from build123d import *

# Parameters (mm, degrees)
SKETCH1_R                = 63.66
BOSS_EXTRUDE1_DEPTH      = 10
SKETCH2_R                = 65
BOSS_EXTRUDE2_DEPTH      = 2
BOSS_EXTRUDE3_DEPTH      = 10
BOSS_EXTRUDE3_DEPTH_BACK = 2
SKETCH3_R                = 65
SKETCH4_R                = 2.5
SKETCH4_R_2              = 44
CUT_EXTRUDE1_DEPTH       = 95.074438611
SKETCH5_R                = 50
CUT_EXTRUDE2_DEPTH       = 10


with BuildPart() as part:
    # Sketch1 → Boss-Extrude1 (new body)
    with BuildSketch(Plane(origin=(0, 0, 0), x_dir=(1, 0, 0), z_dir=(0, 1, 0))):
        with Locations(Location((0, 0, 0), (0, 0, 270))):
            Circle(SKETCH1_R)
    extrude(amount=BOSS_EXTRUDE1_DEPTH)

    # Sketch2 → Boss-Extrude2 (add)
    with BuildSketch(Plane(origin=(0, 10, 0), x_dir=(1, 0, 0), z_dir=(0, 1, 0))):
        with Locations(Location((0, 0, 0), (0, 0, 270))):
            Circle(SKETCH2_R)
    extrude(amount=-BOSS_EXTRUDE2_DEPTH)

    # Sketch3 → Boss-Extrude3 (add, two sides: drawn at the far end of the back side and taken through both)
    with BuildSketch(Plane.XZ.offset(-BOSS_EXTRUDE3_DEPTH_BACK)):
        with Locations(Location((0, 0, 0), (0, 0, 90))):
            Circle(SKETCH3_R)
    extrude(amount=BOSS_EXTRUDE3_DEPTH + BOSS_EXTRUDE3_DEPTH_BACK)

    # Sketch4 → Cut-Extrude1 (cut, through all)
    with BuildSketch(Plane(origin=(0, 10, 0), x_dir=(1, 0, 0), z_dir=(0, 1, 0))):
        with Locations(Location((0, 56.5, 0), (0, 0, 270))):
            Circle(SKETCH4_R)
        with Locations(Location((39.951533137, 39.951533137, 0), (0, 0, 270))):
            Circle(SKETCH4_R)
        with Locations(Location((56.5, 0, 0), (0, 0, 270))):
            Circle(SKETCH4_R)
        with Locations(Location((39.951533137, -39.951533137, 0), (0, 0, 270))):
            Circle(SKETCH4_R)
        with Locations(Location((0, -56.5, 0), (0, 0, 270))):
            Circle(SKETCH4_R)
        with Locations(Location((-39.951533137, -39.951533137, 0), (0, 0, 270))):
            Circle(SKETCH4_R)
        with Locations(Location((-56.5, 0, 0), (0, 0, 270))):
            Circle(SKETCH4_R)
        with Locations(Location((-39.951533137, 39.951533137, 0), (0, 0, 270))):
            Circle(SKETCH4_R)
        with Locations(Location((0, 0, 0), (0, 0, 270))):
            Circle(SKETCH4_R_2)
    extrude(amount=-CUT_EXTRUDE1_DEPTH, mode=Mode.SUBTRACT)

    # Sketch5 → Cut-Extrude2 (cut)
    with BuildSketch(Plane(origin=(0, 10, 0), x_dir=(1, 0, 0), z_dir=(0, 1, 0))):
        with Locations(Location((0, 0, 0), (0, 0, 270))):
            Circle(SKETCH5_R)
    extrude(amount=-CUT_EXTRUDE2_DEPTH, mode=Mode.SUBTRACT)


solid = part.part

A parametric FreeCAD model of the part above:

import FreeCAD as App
import Part
import Sketcher
from FreeCAD import Vector

doc = App.newDocument("Part")
body = doc.addObject("PartDesign::Body", "Body")

sketch1 = body.newObject("Sketcher::SketchObject", "Sketch")
sketch1.AttachmentSupport = (doc.getObject("XZ_Plane"), [""])
sketch1.MapMode = "FlatFace"
sketch1.addGeometry(Part.Circle(Vector(0, 0, 0), Vector(0, 0, 1), 63.66), False)
sketch1.addConstraint([
    Sketcher.Constraint("Coincident", 0, 3, -1, 1),
    Sketcher.Constraint("Diameter", 0, 127.32),
])
pad1 = body.newObject("PartDesign::Pad", "Pad")
pad1.Profile = sketch1
pad1.Length = 10
pad1.Reversed = True

sketch2 = body.newObject("Sketcher::SketchObject", "Sketch001")
sketch2.AttachmentSupport = (doc.getObject("XZ_Plane"), [""])
sketch2.MapMode = "FlatFace"
sketch2.AttachmentOffset = App.Placement(Vector(0, 0, -10), App.Rotation())
sketch2.addGeometry(Part.Circle(Vector(0, 0, 0), Vector(0, 0, 1), 65), False)
sketch2.addConstraint([
    Sketcher.Constraint("Coincident", 0, 3, -1, 1),
    Sketcher.Constraint("Diameter", 0, 130.0),
])
pad2 = body.newObject("PartDesign::Pad", "Pad001")
pad2.Profile = sketch2
pad2.Length = 2

sketch3 = body.newObject("Sketcher::SketchObject", "Sketch002")
sketch3.AttachmentSupport = (doc.getObject("XZ_Plane"), [""])
sketch3.MapMode = "FlatFace"
sketch3.addGeometry(Part.Circle(Vector(0, 0, 0), Vector(0, 0, 1), 65), False)
sketch3.addConstraint([
    Sketcher.Constraint("Coincident", 0, 3, -1, 1),
    Sketcher.Constraint("Diameter", 0, 130.0),
])
pad3 = body.newObject("PartDesign::Pad", "Pad002")
pad3.Profile = sketch3
pad3.Type = "TwoLengths"
pad3.Length = 10
pad3.Length2 = 2

sketch4 = body.newObject("Sketcher::SketchObject", "Sketch003")
sketch4.AttachmentSupport = (doc.getObject("XZ_Plane"), [""])
sketch4.MapMode = "FlatFace"
sketch4.AttachmentOffset = App.Placement(Vector(0, 0, -10), App.Rotation())
sketch4.addGeometry([
    Part.Circle(Vector(0, -56.5, 0), Vector(0, 0, 1), 2.5),
    Part.Circle(Vector(39.951533, -39.951533, 0), Vector(0, 0, 1), 2.5),
    Part.Circle(Vector(56.5, 0, 0), Vector(0, 0, 1), 2.5),
    Part.Circle(Vector(39.951533, 39.951533, 0), Vector(0, 0, 1), 2.5),
    Part.Circle(Vector(0, 56.5, 0), Vector(0, 0, 1), 2.5),
    Part.Circle(Vector(-39.951533, 39.951533, 0), Vector(0, 0, 1), 2.5),
    Part.Circle(Vector(-56.5, 0, 0), Vector(0, 0, 1), 2.5),
    Part.Circle(Vector(-39.951533, -39.951533, 0), Vector(0, 0, 1), 2.5),
    Part.Circle(Vector(0, 0, 0), Vector(0, 0, 1), 44),
], False)
sketch4.addConstraint([
    Sketcher.Constraint("Coincident", 8, 3, -1, 1),
    Sketcher.Constraint("Equal", 0, 1),
    Sketcher.Constraint("Equal", 1, 2),
    Sketcher.Constraint("Equal", 2, 3),
    Sketcher.Constraint("Equal", 3, 4),
    Sketcher.Constraint("Equal", 4, 5),
    Sketcher.Constraint("Equal", 5, 6),
    Sketcher.Constraint("Equal", 6, 7),
    Sketcher.Constraint("Symmetric", 0, 3, 4, 3, -1, 1),
    Sketcher.Constraint("Symmetric", 1, 3, 5, 3, -1, 1),
    Sketcher.Constraint("Symmetric", 2, 3, 6, 3, -1, 1),
    Sketcher.Constraint("Symmetric", 3, 3, 7, 3, -1, 1),
    Sketcher.Constraint("Symmetric", 3, 3, 5, 3, -2),
    Sketcher.Constraint("PointOnObject", 0, 3, -2),
    Sketcher.Constraint("PointOnObject", 2, 3, -1),
    Sketcher.Constraint("Diameter", 0, 5.0),
    Sketcher.Constraint("Diameter", 8, 88.0),
    Sketcher.Constraint("DistanceY", 0, 3, 4, 3, 113.0),
    Sketcher.Constraint("DistanceX", -1, 1, 2, 3, 56.5),
    Sketcher.Constraint("DistanceX", -1, 1, 1, 3, 39.951533),
    Sketcher.Constraint("DistanceY", 1, 3, -1, 1, 39.951533),
])
pocket1 = body.newObject("PartDesign::Pocket", "Pocket")
pocket1.Profile = sketch4
pocket1.Type = "ThroughAll"
pocket1.Reversed = True

sketch5 = body.newObject("Sketcher::SketchObject", "Sketch004")
sketch5.AttachmentSupport = (doc.getObject("XZ_Plane"), [""])
sketch5.MapMode = "FlatFace"
sketch5.AttachmentOffset = App.Placement(Vector(0, 0, -10), App.Rotation())
sketch5.addGeometry(Part.Circle(Vector(0, 0, 0), Vector(0, 0, 1), 50), False)
sketch5.addConstraint([
    Sketcher.Constraint("Coincident", 0, 3, -1, 1),
    Sketcher.Constraint("Diameter", 0, 100.0),
])
pocket2 = body.newObject("PartDesign::Pocket", "Pocket001")
pocket2.Profile = sketch5
pocket2.Length = 10
pocket2.Reversed = True

doc.recompute()
